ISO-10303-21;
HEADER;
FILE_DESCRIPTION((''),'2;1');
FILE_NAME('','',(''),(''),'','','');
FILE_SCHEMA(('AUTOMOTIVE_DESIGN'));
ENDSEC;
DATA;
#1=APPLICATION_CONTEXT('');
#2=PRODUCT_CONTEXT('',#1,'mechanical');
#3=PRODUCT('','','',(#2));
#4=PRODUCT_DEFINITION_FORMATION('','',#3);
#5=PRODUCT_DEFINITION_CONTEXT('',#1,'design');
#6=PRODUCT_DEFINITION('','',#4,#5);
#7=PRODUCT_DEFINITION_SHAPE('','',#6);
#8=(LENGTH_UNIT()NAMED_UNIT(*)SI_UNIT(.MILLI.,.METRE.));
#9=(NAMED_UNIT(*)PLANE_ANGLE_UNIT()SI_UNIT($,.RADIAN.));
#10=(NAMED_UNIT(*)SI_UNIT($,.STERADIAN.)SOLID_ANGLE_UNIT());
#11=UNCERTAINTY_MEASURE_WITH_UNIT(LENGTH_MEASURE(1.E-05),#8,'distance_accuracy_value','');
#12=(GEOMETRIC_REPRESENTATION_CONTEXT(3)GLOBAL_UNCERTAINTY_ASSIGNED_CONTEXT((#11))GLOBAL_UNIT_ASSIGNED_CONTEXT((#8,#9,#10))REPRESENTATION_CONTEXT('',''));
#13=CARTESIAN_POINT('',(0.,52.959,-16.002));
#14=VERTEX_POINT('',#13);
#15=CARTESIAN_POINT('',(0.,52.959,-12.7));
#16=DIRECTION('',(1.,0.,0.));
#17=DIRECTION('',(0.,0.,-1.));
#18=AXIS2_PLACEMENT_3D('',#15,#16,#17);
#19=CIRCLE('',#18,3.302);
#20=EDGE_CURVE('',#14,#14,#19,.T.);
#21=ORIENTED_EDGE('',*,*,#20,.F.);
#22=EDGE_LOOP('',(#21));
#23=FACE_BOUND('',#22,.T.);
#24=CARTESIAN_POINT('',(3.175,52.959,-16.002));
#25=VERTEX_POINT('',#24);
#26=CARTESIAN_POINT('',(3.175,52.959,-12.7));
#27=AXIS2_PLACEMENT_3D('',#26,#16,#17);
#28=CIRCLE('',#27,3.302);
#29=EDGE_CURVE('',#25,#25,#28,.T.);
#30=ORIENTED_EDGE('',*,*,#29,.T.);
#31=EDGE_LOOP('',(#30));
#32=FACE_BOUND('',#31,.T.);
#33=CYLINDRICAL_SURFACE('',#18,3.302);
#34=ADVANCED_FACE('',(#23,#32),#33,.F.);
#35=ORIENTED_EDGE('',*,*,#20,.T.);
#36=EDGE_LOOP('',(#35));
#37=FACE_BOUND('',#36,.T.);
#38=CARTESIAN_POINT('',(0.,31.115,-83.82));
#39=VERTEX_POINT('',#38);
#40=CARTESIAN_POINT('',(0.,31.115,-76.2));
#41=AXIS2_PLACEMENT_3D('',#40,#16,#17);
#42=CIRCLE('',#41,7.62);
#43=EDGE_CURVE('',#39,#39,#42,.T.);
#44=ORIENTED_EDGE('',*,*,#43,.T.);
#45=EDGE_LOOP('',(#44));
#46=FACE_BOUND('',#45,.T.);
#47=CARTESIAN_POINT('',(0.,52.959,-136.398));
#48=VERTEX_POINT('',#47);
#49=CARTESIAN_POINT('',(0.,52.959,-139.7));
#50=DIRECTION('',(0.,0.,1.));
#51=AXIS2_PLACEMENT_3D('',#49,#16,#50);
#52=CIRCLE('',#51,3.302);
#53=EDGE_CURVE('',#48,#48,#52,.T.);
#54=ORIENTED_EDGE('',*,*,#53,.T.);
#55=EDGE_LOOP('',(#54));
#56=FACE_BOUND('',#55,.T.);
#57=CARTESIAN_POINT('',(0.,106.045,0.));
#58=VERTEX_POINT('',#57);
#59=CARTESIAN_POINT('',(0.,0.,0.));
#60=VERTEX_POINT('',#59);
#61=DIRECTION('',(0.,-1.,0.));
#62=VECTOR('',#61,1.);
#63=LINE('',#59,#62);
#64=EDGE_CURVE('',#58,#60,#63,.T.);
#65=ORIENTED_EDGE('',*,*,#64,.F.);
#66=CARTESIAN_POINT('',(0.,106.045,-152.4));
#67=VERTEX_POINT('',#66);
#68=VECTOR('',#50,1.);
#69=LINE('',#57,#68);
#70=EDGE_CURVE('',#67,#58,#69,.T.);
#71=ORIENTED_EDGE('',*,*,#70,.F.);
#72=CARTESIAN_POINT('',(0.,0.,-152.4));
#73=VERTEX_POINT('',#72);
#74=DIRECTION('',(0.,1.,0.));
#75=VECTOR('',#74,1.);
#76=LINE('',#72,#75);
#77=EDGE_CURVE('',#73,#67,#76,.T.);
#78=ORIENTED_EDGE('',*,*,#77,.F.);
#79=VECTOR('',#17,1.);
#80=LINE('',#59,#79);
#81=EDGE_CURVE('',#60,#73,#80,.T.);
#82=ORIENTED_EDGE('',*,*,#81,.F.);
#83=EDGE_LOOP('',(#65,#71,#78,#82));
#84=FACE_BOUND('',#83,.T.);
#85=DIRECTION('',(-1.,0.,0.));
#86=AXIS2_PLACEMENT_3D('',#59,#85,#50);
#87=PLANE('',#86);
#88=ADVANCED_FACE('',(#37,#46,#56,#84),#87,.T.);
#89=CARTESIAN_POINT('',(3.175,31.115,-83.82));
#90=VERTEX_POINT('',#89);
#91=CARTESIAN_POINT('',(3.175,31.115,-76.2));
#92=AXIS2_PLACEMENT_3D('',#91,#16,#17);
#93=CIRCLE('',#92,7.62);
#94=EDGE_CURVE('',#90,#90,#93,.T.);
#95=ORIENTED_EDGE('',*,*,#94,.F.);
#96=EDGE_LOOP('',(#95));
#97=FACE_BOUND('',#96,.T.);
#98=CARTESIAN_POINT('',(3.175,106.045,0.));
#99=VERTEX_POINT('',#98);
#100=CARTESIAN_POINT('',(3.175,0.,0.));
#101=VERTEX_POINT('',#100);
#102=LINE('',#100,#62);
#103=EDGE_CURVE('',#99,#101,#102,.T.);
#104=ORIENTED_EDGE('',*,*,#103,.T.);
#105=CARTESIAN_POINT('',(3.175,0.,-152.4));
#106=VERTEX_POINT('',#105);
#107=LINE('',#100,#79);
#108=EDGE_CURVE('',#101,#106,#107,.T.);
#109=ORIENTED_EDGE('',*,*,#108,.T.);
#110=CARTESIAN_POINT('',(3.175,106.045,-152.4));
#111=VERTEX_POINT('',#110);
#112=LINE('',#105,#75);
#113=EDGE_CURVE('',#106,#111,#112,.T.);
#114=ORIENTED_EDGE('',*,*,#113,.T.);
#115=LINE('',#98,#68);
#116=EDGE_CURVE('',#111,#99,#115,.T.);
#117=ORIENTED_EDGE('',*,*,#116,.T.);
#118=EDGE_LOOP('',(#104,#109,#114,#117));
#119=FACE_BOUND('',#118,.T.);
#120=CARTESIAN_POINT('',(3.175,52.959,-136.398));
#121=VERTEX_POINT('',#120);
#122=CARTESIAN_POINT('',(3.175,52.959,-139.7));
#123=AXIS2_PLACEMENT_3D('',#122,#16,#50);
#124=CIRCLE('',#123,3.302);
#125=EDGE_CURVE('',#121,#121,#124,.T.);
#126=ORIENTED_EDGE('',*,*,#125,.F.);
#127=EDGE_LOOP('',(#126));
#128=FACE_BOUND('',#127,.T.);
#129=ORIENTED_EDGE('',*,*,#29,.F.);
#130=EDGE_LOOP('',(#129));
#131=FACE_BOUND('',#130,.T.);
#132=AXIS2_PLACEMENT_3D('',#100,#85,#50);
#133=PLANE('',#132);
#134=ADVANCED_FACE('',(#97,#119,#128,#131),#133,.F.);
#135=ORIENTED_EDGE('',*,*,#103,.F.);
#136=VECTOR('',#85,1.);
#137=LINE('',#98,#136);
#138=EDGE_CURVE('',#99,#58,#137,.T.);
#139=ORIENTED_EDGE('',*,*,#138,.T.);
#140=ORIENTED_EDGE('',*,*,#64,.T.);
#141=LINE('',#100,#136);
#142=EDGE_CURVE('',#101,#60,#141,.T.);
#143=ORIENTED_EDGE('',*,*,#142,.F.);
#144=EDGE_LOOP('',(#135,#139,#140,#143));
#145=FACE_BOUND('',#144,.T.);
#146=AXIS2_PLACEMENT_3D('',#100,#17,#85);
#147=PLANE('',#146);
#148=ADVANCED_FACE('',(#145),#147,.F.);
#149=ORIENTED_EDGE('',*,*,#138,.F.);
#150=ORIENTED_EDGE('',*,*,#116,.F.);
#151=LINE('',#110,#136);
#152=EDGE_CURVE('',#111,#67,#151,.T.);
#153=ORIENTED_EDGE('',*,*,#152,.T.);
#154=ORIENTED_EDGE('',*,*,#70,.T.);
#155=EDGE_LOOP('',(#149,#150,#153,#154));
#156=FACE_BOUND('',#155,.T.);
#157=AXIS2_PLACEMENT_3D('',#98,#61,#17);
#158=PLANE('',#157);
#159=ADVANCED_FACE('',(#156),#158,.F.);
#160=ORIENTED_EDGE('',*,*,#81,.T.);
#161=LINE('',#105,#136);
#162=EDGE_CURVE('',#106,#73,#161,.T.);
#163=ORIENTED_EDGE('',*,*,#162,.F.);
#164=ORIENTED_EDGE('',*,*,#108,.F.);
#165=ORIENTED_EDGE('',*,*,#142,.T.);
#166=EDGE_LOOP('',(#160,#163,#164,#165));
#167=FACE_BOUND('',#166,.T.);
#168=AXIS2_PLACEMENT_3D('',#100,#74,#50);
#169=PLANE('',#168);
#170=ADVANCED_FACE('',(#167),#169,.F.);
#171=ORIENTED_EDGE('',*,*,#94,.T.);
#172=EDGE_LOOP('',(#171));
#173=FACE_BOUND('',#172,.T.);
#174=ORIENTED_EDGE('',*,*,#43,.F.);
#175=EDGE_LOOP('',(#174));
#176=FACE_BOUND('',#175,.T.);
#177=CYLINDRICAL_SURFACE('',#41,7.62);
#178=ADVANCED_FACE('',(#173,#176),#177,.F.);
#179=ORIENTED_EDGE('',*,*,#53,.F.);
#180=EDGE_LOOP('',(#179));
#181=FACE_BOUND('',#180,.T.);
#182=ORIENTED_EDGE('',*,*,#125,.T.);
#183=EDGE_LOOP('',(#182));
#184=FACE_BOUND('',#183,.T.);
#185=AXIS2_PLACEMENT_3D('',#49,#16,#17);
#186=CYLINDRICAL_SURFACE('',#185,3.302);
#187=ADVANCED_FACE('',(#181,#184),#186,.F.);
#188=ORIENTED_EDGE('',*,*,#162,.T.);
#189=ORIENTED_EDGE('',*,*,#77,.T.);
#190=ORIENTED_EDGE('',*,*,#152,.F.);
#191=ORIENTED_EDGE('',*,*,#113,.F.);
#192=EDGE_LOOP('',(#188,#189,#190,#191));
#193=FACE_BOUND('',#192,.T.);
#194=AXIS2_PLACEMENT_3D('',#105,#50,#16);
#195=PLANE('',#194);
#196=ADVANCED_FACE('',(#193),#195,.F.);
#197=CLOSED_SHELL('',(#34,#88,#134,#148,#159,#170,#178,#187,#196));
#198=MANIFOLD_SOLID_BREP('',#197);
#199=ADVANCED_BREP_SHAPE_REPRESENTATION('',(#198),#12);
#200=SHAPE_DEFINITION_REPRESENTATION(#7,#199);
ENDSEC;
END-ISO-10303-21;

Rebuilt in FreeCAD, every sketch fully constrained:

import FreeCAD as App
import Part
import Sketcher
Q = App.Units.Quantity

doc = App.newDocument("Part")
params = doc.addObject("Spreadsheet::Sheet", "Params")
for row, (alias, value) in enumerate([
    ("sketch1_height", "6 in"),
    ("sketch1_width", "4.175 in"),
    ("pad1_length", "0.125 in"),
    ("sketch2_diameter", "0.6 in"),
    ("sketch2_diameter2", "0.26 in"),
], start=1):
    params.set(f"A{row}", alias)
    params.set(f"B{row}", "=" + value)
    params.setAlias(f"B{row}", alias)

body = doc.addObject("PartDesign::Body", "Body")

sketch1 = body.newObject("Sketcher::SketchObject", "Sketch")
sketch1.AttachmentSupport = (doc.getObject("YZ_Plane"), [""])
sketch1.MapMode = "FlatFace"
sketch1.addGeometry([
    Part.LineSegment(App.Vector(106, 0, 0), App.Vector(0, 0, 0)),
    Part.LineSegment(App.Vector(0, 0, 0), App.Vector(0, -152, 0)),
    Part.LineSegment(App.Vector(0, -152, 0), App.Vector(106, -152, 0)),
    Part.LineSegment(App.Vector(106, -152, 0), App.Vector(106, 0, 0)),
], False)
sketch1.addConstraint([
    Sketcher.Constraint("Coincident", 0, 2, 1, 1),
    Sketcher.Constraint("Coincident", 1, 2, 2, 1),
    Sketcher.Constraint("Coincident", 2, 2, 3, 1),
    Sketcher.Constraint("Coincident", 3, 2, 0, 1),
    Sketcher.Constraint("Horizontal", 0),
    Sketcher.Constraint("Vertical", 1),
    Sketcher.Constraint("Horizontal", 2),
    Sketcher.Constraint("Vertical", 3),
    Sketcher.Constraint("Coincident", 0, 2, -1, 1),
    Sketcher.Constraint("DistanceY", 1, 2, 1, 1, Q("6 in")),
    Sketcher.Constraint("DistanceX", 0, 2, 0, 1, Q("4.175 in")),
])
sketch1.setExpression("Constraints[9]", "Params.sketch1_height")
sketch1.setExpression("Constraints[10]", "Params.sketch1_width")
pad1 = body.newObject("PartDesign::Pad", "Pad")
pad1.Profile = sketch1
pad1.setExpression("Length", "Params.pad1_length")

sketch2 = body.newObject("Sketcher::SketchObject", "Sketch001")
sketch2.AttachmentSupport = (doc.getObject("YZ_Plane"), [""])
sketch2.MapMode = "FlatFace"
sketch2.AttachmentOffset = App.Placement(App.Vector(0, 0, 0.125 * 25.4), App.Rotation())
sketch2.addGeometry([
    Part.Circle(App.Vector(31.1, -76.2, 0), App.Vector(0, 0, 1), 7.6),
    Part.Circle(App.Vector(53, -12.7, 0), App.Vector(0, 0, 1), 3.3),
    Part.Circle(App.Vector(53, -139.7, 0), App.Vector(0, 0, 1), 3.3),
], False)
sketch2.addConstraint([
    Sketcher.Constraint("Equal", 1, 2),
    Sketcher.Constraint("Vertical", 1, 3, 2, 3),
    Sketcher.Constraint("Diameter", 0, Q("0.6 in")),
    Sketcher.Constraint("Diameter", 1, Q("0.26 in")),
    Sketcher.Constraint("DistanceY", 0, 3, -1, 1, Q("3 in")),
    Sketcher.Constraint("DistanceY", 2, 3, 1, 3, Q("5 in")),
    Sketcher.Constraint("DistanceY", 1, 3, -1, 1, Q("0.5 in")),
    Sketcher.Constraint("DistanceX", 0, 3, 1, 3, Q("0.86 in")),
    Sketcher.Constraint("DistanceX", -1, 1, 0, 3, Q("1.225 in")),
])
sketch2.setExpression("Constraints[2]", "Params.sketch2_diameter")
sketch2.setExpression("Constraints[3]", "Params.sketch2_diameter2")
pocket1 = body.newObject("PartDesign::Pocket", "Pocket")
pocket1.Profile = sketch2
pocket1.Type = "ThroughAll"

doc.recompute()
